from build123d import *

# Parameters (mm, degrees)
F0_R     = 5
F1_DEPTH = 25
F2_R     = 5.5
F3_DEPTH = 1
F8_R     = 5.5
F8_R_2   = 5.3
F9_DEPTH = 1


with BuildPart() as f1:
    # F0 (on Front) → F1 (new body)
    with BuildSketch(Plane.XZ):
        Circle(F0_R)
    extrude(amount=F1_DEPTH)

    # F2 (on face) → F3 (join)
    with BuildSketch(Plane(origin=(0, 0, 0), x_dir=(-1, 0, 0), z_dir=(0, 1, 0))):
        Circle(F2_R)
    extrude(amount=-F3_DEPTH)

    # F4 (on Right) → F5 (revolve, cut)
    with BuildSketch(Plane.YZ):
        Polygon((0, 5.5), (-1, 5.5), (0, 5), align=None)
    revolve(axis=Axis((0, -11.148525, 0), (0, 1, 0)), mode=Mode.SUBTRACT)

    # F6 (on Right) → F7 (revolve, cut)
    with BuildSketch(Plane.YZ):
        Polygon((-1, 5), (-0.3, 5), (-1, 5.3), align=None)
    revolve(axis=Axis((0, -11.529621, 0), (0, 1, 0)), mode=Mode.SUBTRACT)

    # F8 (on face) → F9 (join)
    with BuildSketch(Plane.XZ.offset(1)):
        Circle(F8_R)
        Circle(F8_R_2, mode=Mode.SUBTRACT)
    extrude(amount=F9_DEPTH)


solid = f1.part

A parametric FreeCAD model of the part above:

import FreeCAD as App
import Part
import Sketcher

doc = App.newDocument("Part")
body = doc.addObject("PartDesign::Body", "Body")

sketch1 = body.newObject("Sketcher::SketchObject", "Sketch")
sketch1.AttachmentSupport = (doc.getObject("XZ_Plane"), [""])
sketch1.MapMode = "FlatFace"
sketch1.addGeometry(Part.Circle(App.Vector(0, 0, 0), App.Vector(0, 0, 1), 5), False)
sketch1.addConstraint(Sketcher.Constraint("Coincident", 0, 3, -1, 1))
sketch1.addConstraint(Sketcher.Constraint("Diameter", 0, 10.0))
pad1 = body.newObject("PartDesign::Pad", "Pad")
pad1.Profile = sketch1
pad1.Length = 25

sketch2 = body.newObject("Sketcher::SketchObject", "Sketch001")
sketch2.AttachmentSupport = (doc.getObject("XZ_Plane"), [""])
sketch2.MapMode = "FlatFace"
sketch2.addGeometry(Part.Circle(App.Vector(0, 0, 0), App.Vector(0, 0, 1), 6), False)
sketch2.addConstraint(Sketcher.Constraint("Coincident", 0, 3, -1, 1))
sketch2.addConstraint(Sketcher.Constraint("Diameter", 0, 11.0))
pad2 = body.newObject("PartDesign::Pad", "Pad001")
pad2.Profile = sketch2
pad2.Length = 1

sketch3 = body.newObject("Sketcher::SketchObject", "Sketch002")
sketch3.AttachmentSupport = (doc.getObject("YZ_Plane"), [""])
sketch3.MapMode = "FlatFace"
sketch3.addGeometry(Part.LineSegment(App.Vector(0, 5.5, 0), App.Vector(-1, 5.5, 0)), False)
sketch3.addGeometry(Part.LineSegment(App.Vector(-1, 5.5, 0), App.Vector(0, 5, 0)), False)
sketch3.addGeometry(Part.LineSegment(App.Vector(0, 5, 0), App.Vector(0, 5.5, 0)), False)
sketch3.addConstraint(Sketcher.Constraint("Coincident", 0, 2, 1, 1))
sketch3.addConstraint(Sketcher.Constraint("Coincident", 1, 2, 2, 1))
sketch3.addConstraint(Sketcher.Constraint("Coincident", 2, 2, 0, 1))
sketch3.addConstraint(Sketcher.Constraint("Horizontal", 0))
sketch3.addConstraint(Sketcher.Constraint("Vertical", 2))
sketch3.addConstraint(Sketcher.Constraint("PointOnObject", 1, 2, -2))
sketch3.addConstraint(Sketcher.Constraint("DistanceX", 0, 2, 0, 1, 1.0))
sketch3.addConstraint(Sketcher.Constraint("DistanceY", 2, 1, 2, 2, 0.5))
sketch3.addConstraint(Sketcher.Constraint("DistanceY", -1, 1, 1, 2, 5.0))
groove = body.newObject("PartDesign::Groove", "Groove")
groove.Profile = sketch3
groove.ReferenceAxis = (sketch3, ["H_Axis"])
groove.Angle = 360

sketch4 = body.newObject("Sketcher::SketchObject", "Sketch003")
sketch4.AttachmentSupport = (doc.getObject("YZ_Plane"), [""])
sketch4.MapMode = "FlatFace"
sketch4.addGeometry(Part.LineSegment(App.Vector(-1, 5, 0), App.Vector(-0.3, 5, 0)), False)
sketch4.addGeometry(Part.LineSegment(App.Vector(-0.3, 5, 0), App.Vector(-1, 5.3, 0)), False)
sketch4.addGeometry(Part.LineSegment(App.Vector(-1, 5.3, 0), App.Vector(-1, 5, 0)), False)
sketch4.addConstraint(Sketcher.Constraint("Coincident", 0, 2, 1, 1))
sketch4.addConstraint(Sketcher.Constraint("Coincident", 1, 2, 2, 1))
sketch4.addConstraint(Sketcher.Constraint("Coincident", 2, 2, 0, 1))
sketch4.addConstraint(Sketcher.Constraint("Horizontal", 0))
sketch4.addConstraint(Sketcher.Constraint("Vertical", 2))
sketch4.addConstraint(Sketcher.Constraint("DistanceX", 0, 1, 0, 2, 0.7))
sketch4.addConstraint(Sketcher.Constraint("DistanceY", 2, 2, 2, 1, 0.3))
sketch4.addConstraint(Sketcher.Constraint("DistanceY", -1, 1, 0, 2, 5.0))
sketch4.addConstraint(Sketcher.Constraint("DistanceX", 1, 2, -1, 1, 1.0))
groove2 = body.newObject("PartDesign::Groove", "Groove001")
groove2.Profile = sketch4
groove2.ReferenceAxis = (sketch4, ["H_Axis"])
groove2.Angle = 360

sketch5 = body.newObject("Sketcher::SketchObject", "Sketch004")
sketch5.AttachmentSupport = (doc.getObject("XZ_Plane"), [""])
sketch5.MapMode = "FlatFace"
sketch5.AttachmentOffset = App.Placement(App.Vector(0, 0, 1), App.Rotation())
sketch5.addGeometry(Part.Circle(App.Vector(0, 0, 0), App.Vector(0, 0, 1), 6), False)
sketch5.addGeometry(Part.Circle(App.Vector(0, 0, 0), App.Vector(0, 0, 1), 5), False)
sketch5.addConstraint(Sketcher.Constraint("Coincident", 0, 3, -1, 1))
sketch5.addConstraint(Sketcher.Constraint("Coincident", 1, 3, -1, 1))
sketch5.addConstraint(Sketcher.Constraint("Diameter", 0, 11.0))
sketch5.addConstraint(Sketcher.Constraint("Diameter", 1, 10.6))
pad3 = body.newObject("PartDesign::Pad", "Pad002")
pad3.Profile = sketch5
pad3.Length = 1

doc.recompute()
